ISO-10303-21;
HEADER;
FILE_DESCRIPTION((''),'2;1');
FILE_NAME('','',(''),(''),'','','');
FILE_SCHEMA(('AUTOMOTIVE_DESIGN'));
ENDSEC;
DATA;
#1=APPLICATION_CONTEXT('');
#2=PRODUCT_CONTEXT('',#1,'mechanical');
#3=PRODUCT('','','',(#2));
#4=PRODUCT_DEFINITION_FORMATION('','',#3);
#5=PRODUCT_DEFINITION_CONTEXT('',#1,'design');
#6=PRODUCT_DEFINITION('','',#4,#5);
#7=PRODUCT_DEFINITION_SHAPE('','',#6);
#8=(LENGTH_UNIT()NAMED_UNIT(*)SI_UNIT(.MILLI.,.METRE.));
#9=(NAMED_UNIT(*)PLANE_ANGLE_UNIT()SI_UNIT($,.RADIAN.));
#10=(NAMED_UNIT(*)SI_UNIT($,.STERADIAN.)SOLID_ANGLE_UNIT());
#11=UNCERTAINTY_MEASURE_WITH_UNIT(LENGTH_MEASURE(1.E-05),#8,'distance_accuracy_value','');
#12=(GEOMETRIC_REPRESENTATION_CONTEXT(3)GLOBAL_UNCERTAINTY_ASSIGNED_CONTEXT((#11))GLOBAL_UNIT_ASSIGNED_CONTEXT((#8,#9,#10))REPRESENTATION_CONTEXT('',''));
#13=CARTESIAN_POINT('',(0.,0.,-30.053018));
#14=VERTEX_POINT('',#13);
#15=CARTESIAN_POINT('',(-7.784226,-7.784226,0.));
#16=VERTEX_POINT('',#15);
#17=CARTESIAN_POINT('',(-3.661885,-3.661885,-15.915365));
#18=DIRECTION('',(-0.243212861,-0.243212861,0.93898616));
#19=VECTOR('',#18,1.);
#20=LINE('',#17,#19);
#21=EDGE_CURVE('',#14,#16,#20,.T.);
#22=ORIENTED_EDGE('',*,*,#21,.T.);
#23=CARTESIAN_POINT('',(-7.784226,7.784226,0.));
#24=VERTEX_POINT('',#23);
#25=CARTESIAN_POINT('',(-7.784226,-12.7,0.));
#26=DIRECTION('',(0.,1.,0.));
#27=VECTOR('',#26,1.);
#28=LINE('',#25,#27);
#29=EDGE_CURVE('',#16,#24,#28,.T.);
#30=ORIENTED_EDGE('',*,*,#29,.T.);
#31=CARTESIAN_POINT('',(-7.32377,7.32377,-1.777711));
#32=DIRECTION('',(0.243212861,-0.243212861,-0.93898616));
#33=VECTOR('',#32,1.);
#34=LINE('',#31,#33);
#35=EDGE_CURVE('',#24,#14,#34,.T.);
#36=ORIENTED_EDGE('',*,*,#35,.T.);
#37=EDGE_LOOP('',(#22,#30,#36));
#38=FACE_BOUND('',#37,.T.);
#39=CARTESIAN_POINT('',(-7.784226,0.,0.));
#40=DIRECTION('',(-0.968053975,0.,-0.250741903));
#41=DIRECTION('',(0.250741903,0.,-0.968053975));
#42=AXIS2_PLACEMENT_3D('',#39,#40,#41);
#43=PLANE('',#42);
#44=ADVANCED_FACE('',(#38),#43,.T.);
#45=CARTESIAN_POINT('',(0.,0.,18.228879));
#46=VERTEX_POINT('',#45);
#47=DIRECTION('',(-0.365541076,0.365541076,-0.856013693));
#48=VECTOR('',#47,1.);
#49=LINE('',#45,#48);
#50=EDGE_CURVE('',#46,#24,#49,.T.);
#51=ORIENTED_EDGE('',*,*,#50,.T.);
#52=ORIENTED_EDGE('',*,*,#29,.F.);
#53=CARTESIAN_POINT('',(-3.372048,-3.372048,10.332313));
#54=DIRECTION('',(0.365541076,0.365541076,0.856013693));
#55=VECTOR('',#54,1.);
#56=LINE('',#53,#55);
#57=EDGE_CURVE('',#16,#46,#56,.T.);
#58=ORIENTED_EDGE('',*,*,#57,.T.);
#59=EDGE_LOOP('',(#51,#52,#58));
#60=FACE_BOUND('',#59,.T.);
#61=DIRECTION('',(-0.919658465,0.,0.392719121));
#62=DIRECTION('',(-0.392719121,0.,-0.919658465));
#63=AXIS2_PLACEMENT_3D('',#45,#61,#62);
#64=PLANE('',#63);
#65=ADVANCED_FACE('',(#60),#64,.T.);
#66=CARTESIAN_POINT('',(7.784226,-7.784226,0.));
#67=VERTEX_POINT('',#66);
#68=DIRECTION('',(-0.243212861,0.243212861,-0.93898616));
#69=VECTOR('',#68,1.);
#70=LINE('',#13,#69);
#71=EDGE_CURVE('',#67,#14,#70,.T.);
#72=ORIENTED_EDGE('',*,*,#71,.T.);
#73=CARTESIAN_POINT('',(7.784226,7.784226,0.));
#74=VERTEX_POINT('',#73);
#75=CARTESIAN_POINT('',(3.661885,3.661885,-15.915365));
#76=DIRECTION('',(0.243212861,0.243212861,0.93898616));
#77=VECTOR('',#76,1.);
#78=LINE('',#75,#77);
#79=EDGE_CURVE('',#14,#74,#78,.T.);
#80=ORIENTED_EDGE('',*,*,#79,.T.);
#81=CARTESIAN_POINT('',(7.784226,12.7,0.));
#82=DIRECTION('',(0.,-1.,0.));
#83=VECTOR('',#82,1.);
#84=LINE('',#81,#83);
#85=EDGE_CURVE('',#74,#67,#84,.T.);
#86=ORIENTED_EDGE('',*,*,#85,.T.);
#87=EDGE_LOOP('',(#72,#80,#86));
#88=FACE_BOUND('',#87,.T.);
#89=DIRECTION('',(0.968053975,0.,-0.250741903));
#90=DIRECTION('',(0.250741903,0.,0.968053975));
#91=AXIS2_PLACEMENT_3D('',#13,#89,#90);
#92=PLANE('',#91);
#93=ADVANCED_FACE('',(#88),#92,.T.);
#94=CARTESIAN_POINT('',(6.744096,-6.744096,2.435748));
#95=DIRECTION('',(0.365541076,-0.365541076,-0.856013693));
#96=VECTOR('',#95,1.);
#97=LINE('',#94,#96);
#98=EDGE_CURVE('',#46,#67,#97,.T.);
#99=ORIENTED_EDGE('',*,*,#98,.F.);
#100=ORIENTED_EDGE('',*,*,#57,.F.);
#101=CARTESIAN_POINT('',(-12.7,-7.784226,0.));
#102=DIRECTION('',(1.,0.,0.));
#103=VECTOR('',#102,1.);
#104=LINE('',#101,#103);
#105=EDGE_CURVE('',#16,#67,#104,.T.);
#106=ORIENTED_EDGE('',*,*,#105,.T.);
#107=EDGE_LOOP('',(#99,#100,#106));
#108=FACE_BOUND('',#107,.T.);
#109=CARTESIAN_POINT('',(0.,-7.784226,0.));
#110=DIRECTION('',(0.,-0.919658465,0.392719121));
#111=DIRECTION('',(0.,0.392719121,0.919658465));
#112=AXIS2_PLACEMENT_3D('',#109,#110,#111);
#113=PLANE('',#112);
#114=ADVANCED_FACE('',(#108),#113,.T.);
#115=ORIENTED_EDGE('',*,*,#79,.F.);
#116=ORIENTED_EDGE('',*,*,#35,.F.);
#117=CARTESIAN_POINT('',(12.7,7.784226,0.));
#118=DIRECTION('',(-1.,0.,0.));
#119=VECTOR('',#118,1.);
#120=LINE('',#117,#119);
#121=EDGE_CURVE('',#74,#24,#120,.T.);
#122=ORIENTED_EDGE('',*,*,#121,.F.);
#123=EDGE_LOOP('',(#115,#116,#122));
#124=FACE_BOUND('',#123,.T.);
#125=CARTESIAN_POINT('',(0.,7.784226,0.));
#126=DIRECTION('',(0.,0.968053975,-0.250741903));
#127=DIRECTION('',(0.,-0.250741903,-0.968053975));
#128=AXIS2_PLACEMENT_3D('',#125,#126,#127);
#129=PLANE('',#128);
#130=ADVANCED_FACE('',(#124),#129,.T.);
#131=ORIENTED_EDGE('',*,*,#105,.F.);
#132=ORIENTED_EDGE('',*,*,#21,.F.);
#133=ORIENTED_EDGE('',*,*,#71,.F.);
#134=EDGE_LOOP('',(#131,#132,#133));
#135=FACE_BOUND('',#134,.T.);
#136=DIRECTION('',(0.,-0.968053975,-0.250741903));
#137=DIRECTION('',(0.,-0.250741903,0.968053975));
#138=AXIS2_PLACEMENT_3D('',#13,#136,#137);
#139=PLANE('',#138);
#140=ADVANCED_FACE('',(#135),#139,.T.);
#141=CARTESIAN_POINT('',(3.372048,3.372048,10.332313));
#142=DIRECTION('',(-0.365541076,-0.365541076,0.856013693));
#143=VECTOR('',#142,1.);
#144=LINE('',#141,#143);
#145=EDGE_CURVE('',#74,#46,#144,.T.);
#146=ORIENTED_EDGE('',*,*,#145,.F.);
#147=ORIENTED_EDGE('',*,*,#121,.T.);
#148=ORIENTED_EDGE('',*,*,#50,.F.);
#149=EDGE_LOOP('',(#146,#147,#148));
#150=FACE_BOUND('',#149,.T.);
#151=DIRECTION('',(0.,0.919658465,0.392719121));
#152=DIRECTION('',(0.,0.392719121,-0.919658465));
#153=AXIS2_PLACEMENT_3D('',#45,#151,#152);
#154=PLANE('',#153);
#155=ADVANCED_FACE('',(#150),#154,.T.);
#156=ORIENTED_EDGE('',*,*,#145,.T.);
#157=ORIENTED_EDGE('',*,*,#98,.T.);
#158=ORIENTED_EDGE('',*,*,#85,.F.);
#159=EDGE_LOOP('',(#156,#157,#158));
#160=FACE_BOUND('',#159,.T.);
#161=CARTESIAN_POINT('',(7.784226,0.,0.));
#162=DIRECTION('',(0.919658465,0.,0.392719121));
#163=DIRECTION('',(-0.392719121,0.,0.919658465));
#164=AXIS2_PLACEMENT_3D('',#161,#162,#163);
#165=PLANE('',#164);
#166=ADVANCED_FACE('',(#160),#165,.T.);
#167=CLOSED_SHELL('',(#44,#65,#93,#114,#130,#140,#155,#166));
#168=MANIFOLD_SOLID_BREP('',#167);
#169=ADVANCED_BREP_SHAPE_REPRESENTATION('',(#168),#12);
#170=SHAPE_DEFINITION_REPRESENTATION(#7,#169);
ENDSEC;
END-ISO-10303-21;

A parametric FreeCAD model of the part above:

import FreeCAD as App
import Part
import Sketcher
from FreeCAD import Vector
Q = App.Units.Quantity


def add_polygon(sketch, points):
    """Adds a closed chain of lines whose ends are joined by coincident constraints."""
    first, n = sketch.GeometryCount, len(points)
    for a, b in zip(points, points[1:] + points[:1]):
        sketch.addGeometry(Part.LineSegment(App.Vector(*a, 0), App.Vector(*b, 0)), False)
    for i in range(n):
        sketch.addConstraint(Sketcher.Constraint("Coincident", first + i, 2, first + (i + 1) % n, 1))

doc = App.newDocument("Part")
body = doc.addObject("PartDesign::Body", "Body")

sketch1 = body.newObject("Sketcher::SketchObject", "Sketch")
sketch1.AttachmentSupport = (doc.getObject("XZ_Plane"), [""])
sketch1.MapMode = "FlatFace"
add_polygon(sketch1, [(8, 0), (0, 18), (-8, 0), (0, -30)])
sketch1.addConstraint(Sketcher.Constraint("Symmetric", 1, 2, 3, 2, -1, 1))
sketch1.addConstraint(Sketcher.Constraint("PointOnObject", 0, 2, -2))
sketch1.addConstraint(Sketcher.Constraint("PointOnObject", 1, 2, -1))
sketch1.addConstraint(Sketcher.Constraint("PointOnObject", 2, 2, -2))
sketch1.addConstraint(Sketcher.Constraint("DistanceY", -1, 1, 0, 2, Q("18.228879 mm")))
sketch1.addConstraint(Sketcher.Constraint("DistanceY", 2, 2, -1, 1, Q("30.053018 mm")))
sketch1.addConstraint(Sketcher.Constraint("Distance", 0, Q("19.821357 mm")))
pad1 = body.newObject("PartDesign::Pad", "Pad")
pad1.Profile = sketch1
pad1.Length = Q("1 in")
pad1.Midplane = True
body2 = doc.addObject("PartDesign::Body", "Body001")

sketch2 = body2.newObject("Sketcher::SketchObject", "Sketch001")
sketch2.AttachmentSupport = (doc.getObject("XZ_Plane001"), [""])
sketch2.MapMode = "FlatFace"
add_polygon(sketch2, [(-8, 0), (0, -30), (8, 0), (0, 18)])
sketch2.addConstraint(Sketcher.Constraint("Symmetric", 1, 2, 3, 2, -1, 1))
sketch2.addConstraint(Sketcher.Constraint("PointOnObject", 0, 2, -2))
sketch2.addConstraint(Sketcher.Constraint("PointOnObject", 1, 2, -1))
sketch2.addConstraint(Sketcher.Constraint("PointOnObject", 2, 2, -2))
sketch2.addConstraint(Sketcher.Constraint("DistanceY", 0, 2, -1, 1, Q("30.053018 mm")))
sketch2.addConstraint(Sketcher.Constraint("DistanceY", -1, 1, 2, 2, Q("18.228879 mm")))
sketch2.addConstraint(Sketcher.Constraint("Distance", 0, Q("31.044775 mm")))
pad2 = body2.newObject("PartDesign::Pad", "Pad001")
pad2.Profile = sketch2
pad2.Length = Q("1 in")
pad2.Midplane = True
body3 = doc.addObject("PartDesign::Body", "Body002")
doc.recompute()

body.Placement = App.Placement(Vector(0, 0, 0), App.Rotation(Vector(0, 0, -1), 90))
boolean = body3.newObject("PartDesign::Boolean", "Boolean")
boolean.Type = "Fuse"
boolean.addObjects([body])
doc.recompute()

boolean2 = body2.newObject("PartDesign::Boolean", "Boolean001")
boolean2.Type = "Common"
boolean2.addObjects([body3])

doc.recompute()
